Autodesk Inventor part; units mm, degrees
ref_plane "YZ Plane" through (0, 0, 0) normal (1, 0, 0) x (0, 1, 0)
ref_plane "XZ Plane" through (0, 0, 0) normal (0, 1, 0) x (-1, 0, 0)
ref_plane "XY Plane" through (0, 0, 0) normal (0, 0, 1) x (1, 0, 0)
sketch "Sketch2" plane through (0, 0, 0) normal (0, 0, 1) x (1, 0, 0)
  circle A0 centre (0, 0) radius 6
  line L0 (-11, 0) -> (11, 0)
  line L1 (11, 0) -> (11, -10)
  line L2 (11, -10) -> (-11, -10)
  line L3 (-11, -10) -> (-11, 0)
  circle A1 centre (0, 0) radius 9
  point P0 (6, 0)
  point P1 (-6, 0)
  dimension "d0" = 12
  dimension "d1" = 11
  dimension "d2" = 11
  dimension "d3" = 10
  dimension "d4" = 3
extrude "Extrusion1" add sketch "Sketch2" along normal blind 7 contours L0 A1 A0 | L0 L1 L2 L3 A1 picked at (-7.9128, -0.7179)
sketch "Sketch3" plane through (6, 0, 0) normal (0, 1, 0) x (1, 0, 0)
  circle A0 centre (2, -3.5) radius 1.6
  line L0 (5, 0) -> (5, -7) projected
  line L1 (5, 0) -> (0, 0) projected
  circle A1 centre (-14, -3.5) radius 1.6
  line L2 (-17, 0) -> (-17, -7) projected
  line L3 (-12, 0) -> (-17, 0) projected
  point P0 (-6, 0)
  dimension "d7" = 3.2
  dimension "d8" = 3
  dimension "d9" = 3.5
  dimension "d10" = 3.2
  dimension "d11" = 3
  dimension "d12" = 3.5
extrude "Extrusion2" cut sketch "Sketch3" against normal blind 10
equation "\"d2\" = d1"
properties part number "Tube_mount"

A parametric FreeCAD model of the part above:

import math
import FreeCAD as App
import Part
import Sketcher

doc = App.newDocument("Part")
params = doc.addObject("Spreadsheet::Sheet", "Params")
for row, (alias, value) in enumerate([
    ("sketch1_radius", "6 mm"),
    ("sketch1_height", "10 mm"),
    ("pad1_length", "7 mm"),
    ("sketch2_diameter", "3.2 mm"),
    ("pocket1_length", "10 mm"),
], start=1):
    params.set(f"A{row}", alias)
    params.set(f"B{row}", "=" + value)
    params.setAlias(f"B{row}", alias)

body = doc.addObject("PartDesign::Body", "Body")

sketch1 = body.newObject("Sketcher::SketchObject", "Sketch")
sketch1.AttachmentSupport = (doc.getObject("XY_Plane"), [""])
sketch1.MapMode = "FlatFace"
sketch1.addGeometry([
    Part.ArcOfCircle(Part.Circle(App.Vector(0, 0, 0), App.Vector(0, 0, 1), 6), math.radians(180), math.radians(360)),
    Part.LineSegment(App.Vector(-6, 0, 0), App.Vector(-11, 0, 0)),
    Part.LineSegment(App.Vector(-11, 0, 0), App.Vector(-11, -10, 0)),
    Part.LineSegment(App.Vector(-11, -10, 0), App.Vector(11, -10, 0)),
    Part.LineSegment(App.Vector(11, -10, 0), App.Vector(11, 0, 0)),
    Part.LineSegment(App.Vector(11, 0, 0), App.Vector(6, 0, 0)),
], False)
sketch1.addConstraint([
    Sketcher.Constraint("Coincident", 0, 1, 1, 1),
    Sketcher.Constraint("Coincident", 1, 2, 2, 1),
    Sketcher.Constraint("Coincident", 2, 2, 3, 1),
    Sketcher.Constraint("Coincident", 3, 2, 4, 1),
    Sketcher.Constraint("Coincident", 4, 2, 5, 1),
    Sketcher.Constraint("Coincident", 5, 2, 0, 2),
    Sketcher.Constraint("Horizontal", 1),
    Sketcher.Constraint("Vertical", 2),
    Sketcher.Constraint("Horizontal", 3),
    Sketcher.Constraint("Vertical", 4),
    Sketcher.Constraint("Horizontal", 5),
    Sketcher.Constraint("Coincident", 0, 3, -1, 1),
    Sketcher.Constraint("Symmetric", 1, 2, 4, 2, -1, 1),
    Sketcher.Constraint("PointOnObject", 0, 1, -1),
    Sketcher.Constraint("Radius", 0, 6.0),
    Sketcher.Constraint("DistanceY", 2, 2, 2, 1, 10.0),
    Sketcher.Constraint("DistanceX", 1, 2, -1, 1, 11.0),
])
sketch1.setExpression("Constraints[14]", "Params.sketch1_radius")
sketch1.setExpression("Constraints[15]", "Params.sketch1_height")
pad1 = body.newObject("PartDesign::Pad", "Pad")
pad1.Profile = sketch1
pad1.setExpression("Length", "Params.pad1_length")

sketch2 = body.newObject("Sketcher::SketchObject", "Sketch001")
sketch2.AttachmentSupport = (doc.getObject("XZ_Plane"), [""])
sketch2.MapMode = "FlatFace"
sketch2.addGeometry([
    Part.Circle(App.Vector(8, 3.5, 0), App.Vector(0, 0, 1), 1.6),
    Part.Circle(App.Vector(-8, 3.5, 0), App.Vector(0, 0, 1), 1.6),
], False)
sketch2.addConstraint([
    Sketcher.Constraint("Equal", 0, 1),
    Sketcher.Constraint("Symmetric", 0, 3, 1, 3, -2),
    Sketcher.Constraint("Diameter", 0, 3.2),
    Sketcher.Constraint("DistanceY", -1, 1, 0, 3, 3.5),
    Sketcher.Constraint("DistanceX", -1, 1, 0, 3, 8.0),
])
sketch2.setExpression("Constraints[2]", "Params.sketch2_diameter")
pocket1 = body.newObject("PartDesign::Pocket", "Pocket")
pocket1.Profile = sketch2
pocket1.setExpression("Length", "Params.pocket1_length")
pocket1.Reversed = True

doc.recompute()
